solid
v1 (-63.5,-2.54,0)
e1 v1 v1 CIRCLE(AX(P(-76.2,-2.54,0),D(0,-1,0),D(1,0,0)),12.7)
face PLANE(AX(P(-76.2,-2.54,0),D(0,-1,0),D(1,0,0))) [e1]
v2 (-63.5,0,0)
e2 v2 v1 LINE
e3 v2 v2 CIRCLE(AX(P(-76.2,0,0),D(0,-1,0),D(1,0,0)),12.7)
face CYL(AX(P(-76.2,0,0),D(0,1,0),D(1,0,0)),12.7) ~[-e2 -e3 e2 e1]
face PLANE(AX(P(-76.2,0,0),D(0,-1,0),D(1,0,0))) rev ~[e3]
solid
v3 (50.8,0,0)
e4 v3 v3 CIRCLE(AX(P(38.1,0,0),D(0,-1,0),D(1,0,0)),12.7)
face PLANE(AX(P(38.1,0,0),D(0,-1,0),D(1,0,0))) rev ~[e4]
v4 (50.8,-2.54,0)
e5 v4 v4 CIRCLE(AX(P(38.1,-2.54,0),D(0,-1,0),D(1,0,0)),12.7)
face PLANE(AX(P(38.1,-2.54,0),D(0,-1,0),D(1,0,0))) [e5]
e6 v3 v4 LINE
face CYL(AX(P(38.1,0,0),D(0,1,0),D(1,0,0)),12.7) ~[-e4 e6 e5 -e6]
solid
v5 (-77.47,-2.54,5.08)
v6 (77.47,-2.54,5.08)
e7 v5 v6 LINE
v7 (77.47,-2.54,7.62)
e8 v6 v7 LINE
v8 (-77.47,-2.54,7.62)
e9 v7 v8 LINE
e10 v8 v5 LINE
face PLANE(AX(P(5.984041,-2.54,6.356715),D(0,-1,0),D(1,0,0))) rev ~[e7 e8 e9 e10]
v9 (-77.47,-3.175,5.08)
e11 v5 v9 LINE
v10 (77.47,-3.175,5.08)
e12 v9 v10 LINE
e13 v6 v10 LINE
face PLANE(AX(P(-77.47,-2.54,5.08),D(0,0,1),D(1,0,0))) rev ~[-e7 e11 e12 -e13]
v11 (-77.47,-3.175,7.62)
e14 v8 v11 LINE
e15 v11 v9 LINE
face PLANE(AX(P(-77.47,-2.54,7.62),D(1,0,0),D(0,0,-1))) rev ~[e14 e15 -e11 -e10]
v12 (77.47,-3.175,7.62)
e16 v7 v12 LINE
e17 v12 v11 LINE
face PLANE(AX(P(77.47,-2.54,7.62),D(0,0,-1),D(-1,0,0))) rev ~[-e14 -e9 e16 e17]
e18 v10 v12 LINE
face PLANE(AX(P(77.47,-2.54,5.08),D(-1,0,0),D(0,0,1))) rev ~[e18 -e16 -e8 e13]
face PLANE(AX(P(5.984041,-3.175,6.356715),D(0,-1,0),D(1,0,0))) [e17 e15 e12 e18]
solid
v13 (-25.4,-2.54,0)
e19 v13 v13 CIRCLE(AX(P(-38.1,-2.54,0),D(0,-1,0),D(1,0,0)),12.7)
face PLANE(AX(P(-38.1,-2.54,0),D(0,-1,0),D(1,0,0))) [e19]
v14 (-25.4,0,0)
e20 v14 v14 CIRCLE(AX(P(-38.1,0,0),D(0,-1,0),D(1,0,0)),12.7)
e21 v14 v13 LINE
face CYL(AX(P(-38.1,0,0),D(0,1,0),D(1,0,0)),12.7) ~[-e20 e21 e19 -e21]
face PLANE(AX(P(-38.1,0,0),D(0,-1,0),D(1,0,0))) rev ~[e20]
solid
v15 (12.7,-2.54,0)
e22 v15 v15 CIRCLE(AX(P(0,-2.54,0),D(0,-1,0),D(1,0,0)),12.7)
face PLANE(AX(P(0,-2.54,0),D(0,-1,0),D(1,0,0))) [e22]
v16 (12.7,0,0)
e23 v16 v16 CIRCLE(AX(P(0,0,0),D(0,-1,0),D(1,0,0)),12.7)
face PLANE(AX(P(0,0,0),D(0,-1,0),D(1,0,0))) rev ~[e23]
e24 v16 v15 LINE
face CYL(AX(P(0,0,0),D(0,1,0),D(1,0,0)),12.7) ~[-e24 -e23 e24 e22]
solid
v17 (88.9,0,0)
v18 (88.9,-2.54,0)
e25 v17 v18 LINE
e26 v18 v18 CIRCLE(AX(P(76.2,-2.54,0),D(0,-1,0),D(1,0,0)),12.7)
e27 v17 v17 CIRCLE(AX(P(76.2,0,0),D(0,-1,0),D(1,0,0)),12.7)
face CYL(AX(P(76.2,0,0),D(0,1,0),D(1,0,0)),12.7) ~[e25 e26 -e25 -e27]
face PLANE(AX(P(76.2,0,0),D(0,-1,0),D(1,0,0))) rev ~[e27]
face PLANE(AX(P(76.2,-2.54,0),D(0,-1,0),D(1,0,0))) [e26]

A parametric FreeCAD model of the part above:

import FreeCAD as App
import Part
import Sketcher

V = App.Vector
Q = App.Units.Quantity

doc = App.newDocument("Part")
body = doc.addObject("PartDesign::Body", "Body")
body.AllowCompound = True

# Sketch on XZ plane
sketch1 = doc.addObject("Sketcher::SketchObject", "Sketch")
body.addObject(sketch1)
sketch1.AttachmentSupport = (doc.XZ_Plane, [""])
sketch1.MapMode = "FlatFace"
sketch1.addGeometry([
    Part.Circle(V(-76, 0, 0), V(0, 0, 1), 13),  # 0
    Part.Circle(V(-38, 0, 0), V(0, 0, 1), 13),  # 1
    Part.Circle(V(0, 0, 0), V(0, 0, 1), 13),  # 2
    Part.Circle(V(38, 0, 0), V(0, 0, 1), 13),  # 3
    Part.Circle(V(76, 0, 0), V(0, 0, 1), 13),  # 4
], False)
sketch1.addConstraint([
    Sketcher.Constraint("Coincident", 2, 3, -1, 1),
    Sketcher.Constraint("Equal", 0, 1),
    Sketcher.Constraint("Equal", 1, 2),
    Sketcher.Constraint("Equal", 2, 3),
    Sketcher.Constraint("Equal", 3, 4),
    Sketcher.Constraint("Symmetric", 1, 3, 3, 3, -1, 1),
    Sketcher.Constraint("Symmetric", 0, 3, 4, 3, -1, 1),
    Sketcher.Constraint("PointOnObject", 0, 3, -1),
    Sketcher.Constraint("PointOnObject", 1, 3, -1),
    Sketcher.Constraint("Diameter", 0, Q("1 in")),
    Sketcher.Constraint("DistanceX", 0, 3, -1, 1, Q("3 in")),
    Sketcher.Constraint("DistanceX", 1, 3, 3, 3, Q("3 in")),
])
pad1 = doc.addObject("PartDesign::Pad", "Pad")
body.addObject(pad1)
pad1.Profile = sketch1
pad1.Length = Q("0.1 in")
body2 = doc.addObject("PartDesign::Body", "Body001")

# Sketch on XZ plane
sketch2 = doc.addObject("Sketcher::SketchObject", "Sketch001")
body2.addObject(sketch2)
sketch2.AttachmentSupport = (doc.getObject("XZ_Plane001"), [""])
sketch2.MapMode = "FlatFace"
sketch2.AttachmentOffset = App.Placement(V(0, 0, 0.1 * 25.4), App.Rotation())
sketch2.addGeometry([
    Part.LineSegment(V(77.5, 5.1, 0), V(77.5, 7.6, 0)),
    Part.LineSegment(V(77.5, 7.6, 0), V(-77.5, 7.6, 0)),
    Part.LineSegment(V(-77.5, 7.6, 0), V(-77.5, 5.1, 0)),
    Part.LineSegment(V(-77.5, 5.1, 0), V(77.5, 5.1, 0)),
], False)
sketch2.addConstraint([
    Sketcher.Constraint("Coincident", 0, 2, 1, 1),
    Sketcher.Constraint("Coincident", 1, 2, 2, 1),
    Sketcher.Constraint("Coincident", 2, 2, 3, 1),
    Sketcher.Constraint("Coincident", 3, 2, 0, 1),
    Sketcher.Constraint("Vertical", 0),
    Sketcher.Constraint("Horizontal", 1),
    Sketcher.Constraint("Vertical", 2),
    Sketcher.Constraint("Horizontal", 3),
    Sketcher.Constraint("DistanceX", 1, 2, 1, 1, Q("6.1 in")),
    Sketcher.Constraint("DistanceY", 0, 1, 0, 2, Q("0.1 in")),
    Sketcher.Constraint("DistanceY", -1, 1, 0, 2, Q("0.3 in")),
    Sketcher.Constraint("DistanceX", -1, 1, 0, 2, Q("3.05 in")),
])
pad2 = doc.addObject("PartDesign::Pad", "Pad001")
body2.addObject(pad2)
pad2.Profile = sketch2
pad2.Length = Q("0.025 in")

doc.recompute()
